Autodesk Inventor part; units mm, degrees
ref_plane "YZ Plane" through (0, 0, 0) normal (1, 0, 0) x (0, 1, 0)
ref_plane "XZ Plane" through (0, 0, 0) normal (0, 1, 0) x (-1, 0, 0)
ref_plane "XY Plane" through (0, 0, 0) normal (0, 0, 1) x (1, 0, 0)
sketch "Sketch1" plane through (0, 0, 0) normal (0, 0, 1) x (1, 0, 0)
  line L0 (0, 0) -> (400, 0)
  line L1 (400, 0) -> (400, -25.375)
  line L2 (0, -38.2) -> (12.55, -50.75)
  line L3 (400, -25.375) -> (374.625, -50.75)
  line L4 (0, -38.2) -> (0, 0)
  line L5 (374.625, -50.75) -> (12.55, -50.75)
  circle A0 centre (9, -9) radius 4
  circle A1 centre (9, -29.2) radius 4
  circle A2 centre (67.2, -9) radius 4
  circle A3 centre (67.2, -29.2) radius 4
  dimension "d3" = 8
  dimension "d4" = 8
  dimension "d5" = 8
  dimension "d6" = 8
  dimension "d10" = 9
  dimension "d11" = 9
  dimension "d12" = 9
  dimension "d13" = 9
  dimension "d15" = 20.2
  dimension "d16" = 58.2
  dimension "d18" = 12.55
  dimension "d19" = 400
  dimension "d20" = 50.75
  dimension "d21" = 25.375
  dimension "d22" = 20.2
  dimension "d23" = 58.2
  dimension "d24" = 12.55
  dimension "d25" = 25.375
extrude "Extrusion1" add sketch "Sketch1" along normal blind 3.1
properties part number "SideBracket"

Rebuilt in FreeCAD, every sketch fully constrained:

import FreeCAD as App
import Part
import Sketcher

doc = App.newDocument("Part")
body = doc.addObject("PartDesign::Body", "Body")

sketch1 = body.newObject("Sketcher::SketchObject", "Sketch")
sketch1.AttachmentSupport = (doc.getObject("XY_Plane"), [""])
sketch1.MapMode = "FlatFace"
sketch1.addGeometry([
    Part.LineSegment(App.Vector(400, 0, 0), App.Vector(0, 0, 0)),
    Part.LineSegment(App.Vector(0, 0, 0), App.Vector(0, -38.2, 0)),
    Part.LineSegment(App.Vector(0, -38.2, 0), App.Vector(12.6, -50.8, 0)),
    Part.LineSegment(App.Vector(12.6, -50.8, 0), App.Vector(374.6, -50.8, 0)),
    Part.LineSegment(App.Vector(374.6, -50.8, 0), App.Vector(400, -25.4, 0)),
    Part.LineSegment(App.Vector(400, -25.4, 0), App.Vector(400, 0, 0)),
    Part.Circle(App.Vector(9, -29.2, 0), App.Vector(0, 0, 1), 4),
    Part.Circle(App.Vector(67.2, -29.2, 0), App.Vector(0, 0, 1), 4),
    Part.Circle(App.Vector(9, -9, 0), App.Vector(0, 0, 1), 4),
    Part.Circle(App.Vector(67.2, -9, 0), App.Vector(0, 0, 1), 4),
], False)
sketch1.addConstraint([
    Sketcher.Constraint("Coincident", 0, 2, 1, 1),
    Sketcher.Constraint("Coincident", 1, 2, 2, 1),
    Sketcher.Constraint("Coincident", 2, 2, 3, 1),
    Sketcher.Constraint("Coincident", 3, 2, 4, 1),
    Sketcher.Constraint("Coincident", 4, 2, 5, 1),
    Sketcher.Constraint("Coincident", 5, 2, 0, 1),
    Sketcher.Constraint("Horizontal", 0),
    Sketcher.Constraint("Vertical", 1),
    Sketcher.Constraint("Horizontal", 3),
    Sketcher.Constraint("Vertical", 5),
    Sketcher.Constraint("Coincident", 0, 2, -1, 1),
    Sketcher.Constraint("Equal", 6, 7),
    Sketcher.Constraint("Equal", 7, 8),
    Sketcher.Constraint("Equal", 8, 9),
    Sketcher.Constraint("Perpendicular", 2, 4),
    Sketcher.Constraint("Horizontal", 6, 3, 7, 3),
    Sketcher.Constraint("Horizontal", 8, 3, 9, 3),
    Sketcher.Constraint("Vertical", 6, 3, 8, 3),
    Sketcher.Constraint("Vertical", 7, 3, 9, 3),
    Sketcher.Constraint("Diameter", 6, 8.0),
    Sketcher.Constraint("DistanceX", 0, 2, 0, 1, 400.0),
    Sketcher.Constraint("DistanceX", -1, 1, 6, 3, 9.0),
    Sketcher.Constraint("DistanceY", 8, 3, -1, 1, 9.0),
    Sketcher.Constraint("DistanceY", 1, 2, 6, 3, 9.0),
    Sketcher.Constraint("DistanceX", 6, 3, 7, 3, 58.2),
    Sketcher.Constraint("DistanceY", 6, 3, 8, 3, 20.2),
    Sketcher.Constraint("DistanceY", 5, 1, 5, 2, 25.375),
    Sketcher.Constraint("DistanceX", -1, 1, 2, 2, 12.55),
    Sketcher.Constraint("DistanceY", 2, 2, -1, 1, 50.75),
])
pad1 = body.newObject("PartDesign::Pad", "Pad")
pad1.Profile = sketch1
pad1.Length = 3.1

doc.recompute()
